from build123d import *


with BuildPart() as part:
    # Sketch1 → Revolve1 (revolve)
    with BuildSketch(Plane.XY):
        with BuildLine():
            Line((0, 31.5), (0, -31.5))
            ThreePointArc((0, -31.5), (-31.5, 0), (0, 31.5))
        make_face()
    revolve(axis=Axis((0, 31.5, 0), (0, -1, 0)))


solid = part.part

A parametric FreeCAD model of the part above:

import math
import FreeCAD as App
import Part
import Sketcher

V = App.Vector
Q = App.Units.Quantity

doc = App.newDocument("Part")
body = doc.addObject("PartDesign::Body", "Body")

# Sketch on XY plane
sketch1 = body.newObject("Sketcher::SketchObject", "Sketch")
sketch1.AttachmentSupport = (doc.getObject("XY_Plane"), [""])
sketch1.MapMode = "FlatFace"
sketch1.addGeometry([
    Part.LineSegment(V(0, -32, 0), V(0, 32, 0)),
    Part.ArcOfCircle(Part.Circle(V(0, 0, 0), V(0, 0, 1), 32), math.radians(90), math.radians(270)),
], False)
sketch1.addConstraint([
    Sketcher.Constraint("Coincident", 0, 1, 1, 2),
    Sketcher.Constraint("Coincident", 1, 1, 0, 2),
    Sketcher.Constraint("Vertical", 0),
    Sketcher.Constraint("Coincident", 1, 3, -1, 1),
    Sketcher.Constraint("PointOnObject", 0, 1, -2),
    Sketcher.Constraint("Radius", 1, Q("31.5 mm")),
])
revolution = body.newObject("PartDesign::Revolution", "Revolution")
revolution.Profile = sketch1
revolution.ReferenceAxis = (sketch1, ["V_Axis"])
revolution.Angle = 360

doc.recompute()
